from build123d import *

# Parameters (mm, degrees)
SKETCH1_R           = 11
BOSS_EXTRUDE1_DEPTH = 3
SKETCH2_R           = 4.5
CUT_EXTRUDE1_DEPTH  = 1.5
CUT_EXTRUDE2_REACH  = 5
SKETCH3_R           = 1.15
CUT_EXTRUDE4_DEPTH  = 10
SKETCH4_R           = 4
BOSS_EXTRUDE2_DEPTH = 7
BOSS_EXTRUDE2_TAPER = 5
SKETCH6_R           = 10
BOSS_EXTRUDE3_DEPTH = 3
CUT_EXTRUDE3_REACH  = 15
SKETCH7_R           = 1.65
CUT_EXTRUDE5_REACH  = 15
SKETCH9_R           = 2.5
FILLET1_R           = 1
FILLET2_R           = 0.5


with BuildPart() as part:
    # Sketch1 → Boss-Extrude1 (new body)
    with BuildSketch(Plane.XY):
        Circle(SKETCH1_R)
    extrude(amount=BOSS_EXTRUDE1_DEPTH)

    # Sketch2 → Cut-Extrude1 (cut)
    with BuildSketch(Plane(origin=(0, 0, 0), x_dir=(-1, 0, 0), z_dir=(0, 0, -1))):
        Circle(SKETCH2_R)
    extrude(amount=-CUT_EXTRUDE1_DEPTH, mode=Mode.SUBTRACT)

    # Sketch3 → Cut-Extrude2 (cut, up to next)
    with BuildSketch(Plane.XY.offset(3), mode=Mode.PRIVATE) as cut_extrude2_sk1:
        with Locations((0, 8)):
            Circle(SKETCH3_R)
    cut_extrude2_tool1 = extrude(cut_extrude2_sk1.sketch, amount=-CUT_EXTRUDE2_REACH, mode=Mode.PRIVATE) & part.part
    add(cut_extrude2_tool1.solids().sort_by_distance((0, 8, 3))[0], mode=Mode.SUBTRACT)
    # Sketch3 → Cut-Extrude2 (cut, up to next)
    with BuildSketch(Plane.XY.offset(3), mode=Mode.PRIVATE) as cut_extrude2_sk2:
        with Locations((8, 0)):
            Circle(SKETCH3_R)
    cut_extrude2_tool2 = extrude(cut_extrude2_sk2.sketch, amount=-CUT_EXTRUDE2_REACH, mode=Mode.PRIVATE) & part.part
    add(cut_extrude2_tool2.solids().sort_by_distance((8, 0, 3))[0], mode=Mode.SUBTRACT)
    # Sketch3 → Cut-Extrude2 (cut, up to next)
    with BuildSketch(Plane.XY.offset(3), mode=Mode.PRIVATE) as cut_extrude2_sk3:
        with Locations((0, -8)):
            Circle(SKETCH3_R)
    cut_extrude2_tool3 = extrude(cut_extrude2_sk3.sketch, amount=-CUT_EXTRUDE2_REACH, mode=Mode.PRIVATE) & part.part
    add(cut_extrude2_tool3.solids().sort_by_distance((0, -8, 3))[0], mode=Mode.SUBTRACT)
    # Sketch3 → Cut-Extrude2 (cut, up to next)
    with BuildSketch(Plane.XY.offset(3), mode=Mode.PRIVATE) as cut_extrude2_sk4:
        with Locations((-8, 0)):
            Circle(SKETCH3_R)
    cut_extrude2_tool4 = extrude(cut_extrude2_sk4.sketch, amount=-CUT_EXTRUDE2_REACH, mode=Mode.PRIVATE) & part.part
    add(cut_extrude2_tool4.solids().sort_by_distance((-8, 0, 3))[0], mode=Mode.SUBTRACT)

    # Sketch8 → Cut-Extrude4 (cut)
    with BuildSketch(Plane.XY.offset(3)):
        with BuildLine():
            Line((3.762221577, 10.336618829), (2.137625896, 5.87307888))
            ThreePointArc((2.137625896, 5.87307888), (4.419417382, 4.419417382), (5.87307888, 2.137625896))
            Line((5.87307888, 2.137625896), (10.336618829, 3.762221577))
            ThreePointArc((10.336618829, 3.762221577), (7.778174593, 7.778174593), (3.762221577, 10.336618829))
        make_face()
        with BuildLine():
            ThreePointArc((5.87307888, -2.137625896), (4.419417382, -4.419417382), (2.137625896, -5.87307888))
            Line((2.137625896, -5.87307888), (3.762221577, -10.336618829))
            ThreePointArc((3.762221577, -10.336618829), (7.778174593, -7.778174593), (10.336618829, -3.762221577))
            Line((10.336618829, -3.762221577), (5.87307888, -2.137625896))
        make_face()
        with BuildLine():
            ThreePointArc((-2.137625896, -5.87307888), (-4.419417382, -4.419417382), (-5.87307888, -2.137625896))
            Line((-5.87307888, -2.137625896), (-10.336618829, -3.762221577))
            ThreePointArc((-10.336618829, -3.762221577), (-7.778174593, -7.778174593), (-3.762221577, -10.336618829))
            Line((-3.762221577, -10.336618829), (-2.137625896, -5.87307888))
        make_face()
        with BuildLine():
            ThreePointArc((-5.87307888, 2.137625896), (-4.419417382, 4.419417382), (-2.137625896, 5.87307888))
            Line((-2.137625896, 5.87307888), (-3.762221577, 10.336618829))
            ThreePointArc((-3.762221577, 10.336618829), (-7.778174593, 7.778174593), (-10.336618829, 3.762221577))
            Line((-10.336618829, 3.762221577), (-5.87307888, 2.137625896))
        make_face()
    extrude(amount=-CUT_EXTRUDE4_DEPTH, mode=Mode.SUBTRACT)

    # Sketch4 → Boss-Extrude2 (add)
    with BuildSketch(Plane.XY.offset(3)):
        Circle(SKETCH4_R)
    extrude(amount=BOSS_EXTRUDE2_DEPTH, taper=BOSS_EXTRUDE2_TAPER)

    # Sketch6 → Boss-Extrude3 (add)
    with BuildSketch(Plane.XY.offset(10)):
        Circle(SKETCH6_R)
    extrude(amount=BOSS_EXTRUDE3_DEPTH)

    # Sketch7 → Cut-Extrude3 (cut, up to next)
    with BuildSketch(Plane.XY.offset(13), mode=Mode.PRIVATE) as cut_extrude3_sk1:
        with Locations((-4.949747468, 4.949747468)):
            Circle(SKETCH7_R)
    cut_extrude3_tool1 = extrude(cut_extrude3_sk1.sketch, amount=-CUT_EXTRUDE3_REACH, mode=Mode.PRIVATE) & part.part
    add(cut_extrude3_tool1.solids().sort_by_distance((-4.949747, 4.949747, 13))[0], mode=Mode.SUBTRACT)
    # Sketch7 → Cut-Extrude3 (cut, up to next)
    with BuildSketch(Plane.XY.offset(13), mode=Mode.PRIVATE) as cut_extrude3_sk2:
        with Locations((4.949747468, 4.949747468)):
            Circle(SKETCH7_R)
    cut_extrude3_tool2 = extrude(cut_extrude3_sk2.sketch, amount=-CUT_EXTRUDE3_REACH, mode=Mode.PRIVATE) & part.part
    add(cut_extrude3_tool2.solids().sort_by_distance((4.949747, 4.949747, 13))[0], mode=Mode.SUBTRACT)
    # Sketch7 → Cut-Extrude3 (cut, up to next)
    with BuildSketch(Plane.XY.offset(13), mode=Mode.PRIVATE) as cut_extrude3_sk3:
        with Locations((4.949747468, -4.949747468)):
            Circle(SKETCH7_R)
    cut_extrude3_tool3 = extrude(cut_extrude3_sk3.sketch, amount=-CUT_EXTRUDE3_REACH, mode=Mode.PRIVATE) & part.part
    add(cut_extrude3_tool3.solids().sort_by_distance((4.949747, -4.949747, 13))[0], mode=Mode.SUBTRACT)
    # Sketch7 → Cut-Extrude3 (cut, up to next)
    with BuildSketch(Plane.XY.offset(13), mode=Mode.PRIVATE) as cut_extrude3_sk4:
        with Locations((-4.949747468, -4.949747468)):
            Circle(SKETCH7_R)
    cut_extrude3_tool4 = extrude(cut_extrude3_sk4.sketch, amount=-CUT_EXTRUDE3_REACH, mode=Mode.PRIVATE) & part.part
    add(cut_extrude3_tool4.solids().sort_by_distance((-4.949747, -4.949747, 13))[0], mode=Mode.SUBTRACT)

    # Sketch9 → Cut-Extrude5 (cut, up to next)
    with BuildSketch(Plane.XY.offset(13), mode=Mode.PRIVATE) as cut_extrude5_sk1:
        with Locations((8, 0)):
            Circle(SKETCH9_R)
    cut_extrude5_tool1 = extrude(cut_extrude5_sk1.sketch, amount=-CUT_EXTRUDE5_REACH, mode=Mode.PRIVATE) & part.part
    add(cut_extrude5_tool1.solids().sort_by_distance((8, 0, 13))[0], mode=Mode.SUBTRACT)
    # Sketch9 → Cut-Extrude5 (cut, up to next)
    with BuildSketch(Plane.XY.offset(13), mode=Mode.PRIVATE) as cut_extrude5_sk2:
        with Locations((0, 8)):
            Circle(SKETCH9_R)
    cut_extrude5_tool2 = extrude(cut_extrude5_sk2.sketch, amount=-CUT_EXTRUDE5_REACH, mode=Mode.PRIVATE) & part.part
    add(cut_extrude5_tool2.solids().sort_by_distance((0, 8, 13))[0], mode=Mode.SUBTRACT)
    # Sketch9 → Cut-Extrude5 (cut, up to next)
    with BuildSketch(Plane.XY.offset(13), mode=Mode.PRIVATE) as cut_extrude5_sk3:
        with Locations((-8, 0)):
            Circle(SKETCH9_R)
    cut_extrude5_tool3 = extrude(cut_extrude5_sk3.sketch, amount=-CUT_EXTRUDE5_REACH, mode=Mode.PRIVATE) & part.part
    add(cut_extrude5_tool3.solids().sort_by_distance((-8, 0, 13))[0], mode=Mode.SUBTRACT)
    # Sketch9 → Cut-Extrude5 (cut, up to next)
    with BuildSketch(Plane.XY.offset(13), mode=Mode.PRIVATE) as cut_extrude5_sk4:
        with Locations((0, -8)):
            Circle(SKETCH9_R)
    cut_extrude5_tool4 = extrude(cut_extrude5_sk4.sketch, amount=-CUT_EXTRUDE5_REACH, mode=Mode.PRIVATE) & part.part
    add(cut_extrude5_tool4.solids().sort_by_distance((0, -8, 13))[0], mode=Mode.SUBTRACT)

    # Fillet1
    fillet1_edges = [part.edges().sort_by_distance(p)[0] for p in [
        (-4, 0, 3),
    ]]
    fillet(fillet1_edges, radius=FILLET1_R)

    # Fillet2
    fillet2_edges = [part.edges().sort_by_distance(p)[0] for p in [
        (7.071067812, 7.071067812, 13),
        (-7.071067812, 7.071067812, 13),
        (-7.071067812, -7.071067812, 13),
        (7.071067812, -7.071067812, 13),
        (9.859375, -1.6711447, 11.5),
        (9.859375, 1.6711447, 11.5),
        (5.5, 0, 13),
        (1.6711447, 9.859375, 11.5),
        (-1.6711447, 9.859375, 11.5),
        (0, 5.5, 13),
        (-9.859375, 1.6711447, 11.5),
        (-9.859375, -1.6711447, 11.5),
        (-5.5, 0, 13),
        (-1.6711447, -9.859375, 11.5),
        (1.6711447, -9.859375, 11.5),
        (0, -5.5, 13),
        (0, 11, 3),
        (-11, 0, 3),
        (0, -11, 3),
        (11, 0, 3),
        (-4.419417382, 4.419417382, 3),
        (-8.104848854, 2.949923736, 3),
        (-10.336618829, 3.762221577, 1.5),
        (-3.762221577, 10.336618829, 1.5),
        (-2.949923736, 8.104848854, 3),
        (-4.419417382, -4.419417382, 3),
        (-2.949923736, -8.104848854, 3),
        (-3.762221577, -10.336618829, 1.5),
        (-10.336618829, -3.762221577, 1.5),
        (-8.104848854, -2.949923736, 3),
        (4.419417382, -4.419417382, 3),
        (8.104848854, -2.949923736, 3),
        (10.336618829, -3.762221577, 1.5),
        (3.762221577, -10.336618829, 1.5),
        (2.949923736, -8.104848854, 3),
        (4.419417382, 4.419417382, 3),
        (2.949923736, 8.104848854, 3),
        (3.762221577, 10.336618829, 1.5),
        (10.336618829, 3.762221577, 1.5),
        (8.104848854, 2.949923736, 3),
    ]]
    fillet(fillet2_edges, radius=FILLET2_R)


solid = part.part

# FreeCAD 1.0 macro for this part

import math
import FreeCAD as App
import Part
import Sketcher
Q = App.Units.Quantity


def edges_at(feature, points):
    """Names of the edges that pass closest to the given points."""
    edges = feature.Shape.Edges
    near = lambda p: min(range(len(edges)), key=lambda i: edges[i].distToShape(Part.Vertex(*p))[0])
    return sorted({f"Edge{near(p) + 1}" for p in points})

doc = App.newDocument("Part")
body = doc.addObject("PartDesign::Body", "Body")

# Sketch on XY plane
sketch1 = body.newObject("Sketcher::SketchObject", "Sketch")
sketch1.AttachmentSupport = (doc.getObject("XY_Plane"), [""])
sketch1.MapMode = "FlatFace"
sketch1.addGeometry(Part.Circle(App.Vector(0, 0, 0), App.Vector(0, 0, 1), 11), False)
sketch1.addConstraint([
    Sketcher.Constraint("Coincident", 0, 3, -1, 1),
    Sketcher.Constraint("Diameter", 0, 22.0),
])
pad1 = body.newObject("PartDesign::Pad", "Pad")
pad1.Profile = sketch1
pad1.Length = 3

# Sketch on XY plane
sketch2 = body.newObject("Sketcher::SketchObject", "Sketch001")
sketch2.AttachmentSupport = (doc.getObject("XY_Plane"), [""])
sketch2.MapMode = "FlatFace"
sketch2.addGeometry(Part.Circle(App.Vector(0, 0, 0), App.Vector(0, 0, 1), 4.5), False)
sketch2.addConstraint([
    Sketcher.Constraint("Coincident", 0, 3, -1, 1),
    Sketcher.Constraint("Diameter", 0, 9.0),
])
pocket1 = body.newObject("PartDesign::Pocket", "Pocket")
pocket1.Profile = sketch2
pocket1.Length = 1.5
pocket1.Reversed = True

# Sketch on XY plane
sketch3 = body.newObject("Sketcher::SketchObject", "Sketch002")
sketch3.AttachmentSupport = (doc.getObject("XY_Plane"), [""])
sketch3.MapMode = "FlatFace"
sketch3.AttachmentOffset = App.Placement(App.Vector(0, 0, 3), App.Rotation())
sketch3.addGeometry(Part.Circle(App.Vector(0, 8, 0), App.Vector(0, 0, 1), 1.1), False)
sketch3.addConstraint([
    Sketcher.Constraint("PointOnObject", 0, 3, -2),
    Sketcher.Constraint("Diameter", 0, 2.3),
    Sketcher.Constraint("DistanceY", -1, 1, 0, 3, 8.0),
])
pocket2 = body.newObject("PartDesign::Pocket", "Pocket001")
pocket2.Profile = sketch3
pocket2.Type = "UpToFirst"

# Sketch on XY plane
sketch4 = body.newObject("Sketcher::SketchObject", "Sketch003")
sketch4.AttachmentSupport = (doc.getObject("XY_Plane"), [""])
sketch4.MapMode = "FlatFace"
sketch4.AttachmentOffset = App.Placement(App.Vector(0, 0, 3), App.Rotation())
sketch4.addGeometry(Part.Circle(App.Vector(8, 0, 0), App.Vector(0, 0, 1), 1.1), False)
sketch4.addConstraint([
    Sketcher.Constraint("PointOnObject", 0, 3, -1),
    Sketcher.Constraint("Diameter", 0, 2.3),
    Sketcher.Constraint("DistanceX", -1, 1, 0, 3, 8.0),
])
pocket3 = body.newObject("PartDesign::Pocket", "Pocket002")
pocket3.Profile = sketch4
pocket3.Type = "UpToFirst"

# Sketch on XY plane
sketch5 = body.newObject("Sketcher::SketchObject", "Sketch004")
sketch5.AttachmentSupport = (doc.getObject("XY_Plane"), [""])
sketch5.MapMode = "FlatFace"
sketch5.AttachmentOffset = App.Placement(App.Vector(0, 0, 3), App.Rotation())
sketch5.addGeometry(Part.Circle(App.Vector(0, -8, 0), App.Vector(0, 0, 1), 1.1), False)
sketch5.addConstraint([
    Sketcher.Constraint("PointOnObject", 0, 3, -2),
    Sketcher.Constraint("Diameter", 0, 2.3),
    Sketcher.Constraint("DistanceY", 0, 3, -1, 1, 8.0),
])
pocket4 = body.newObject("PartDesign::Pocket", "Pocket003")
pocket4.Profile = sketch5
pocket4.Type = "UpToFirst"

# Sketch on XY plane
sketch6 = body.newObject("Sketcher::SketchObject", "Sketch005")
sketch6.AttachmentSupport = (doc.getObject("XY_Plane"), [""])
sketch6.MapMode = "FlatFace"
sketch6.AttachmentOffset = App.Placement(App.Vector(0, 0, 3), App.Rotation())
sketch6.addGeometry(Part.Circle(App.Vector(-8, 0, 0), App.Vector(0, 0, 1), 1.1), False)
sketch6.addConstraint([
    Sketcher.Constraint("PointOnObject", 0, 3, -1),
    Sketcher.Constraint("Diameter", 0, 2.3),
    Sketcher.Constraint("DistanceX", 0, 3, -1, 1, 8.0),
])
pocket5 = body.newObject("PartDesign::Pocket", "Pocket004")
pocket5.Profile = sketch6
pocket5.Type = "UpToFirst"

# Sketch on XY plane
sketch7 = body.newObject("Sketcher::SketchObject", "Sketch006")
sketch7.AttachmentSupport = (doc.getObject("XY_Plane"), [""])
sketch7.MapMode = "FlatFace"
sketch7.AttachmentOffset = App.Placement(App.Vector(0, 0, 3), App.Rotation())
sketch7.addGeometry([
    Part.LineSegment(App.Vector(3.8, 10.3, 0), App.Vector(2.1, 5.9, 0)),  # 0
    Part.ArcOfCircle(Part.Circle(App.Vector(0, 0, 0), App.Vector(0, 0, 1), 6.3), math.radians(20), math.radians(70)),  # 1
    Part.LineSegment(App.Vector(5.9, 2.1, 0), App.Vector(10.3, 3.8, 0)),  # 2
    Part.ArcOfCircle(Part.Circle(App.Vector(0, 0, 0), App.Vector(0, 0, 1), 11), math.radians(20), math.radians(70)),  # 3
    Part.ArcOfCircle(Part.Circle(App.Vector(0, 0, 0), App.Vector(0, 0, 1), 6.3), math.radians(-70), math.radians(-20)),  # 4
    Part.LineSegment(App.Vector(2.1, -5.9, 0), App.Vector(3.8, -10.3, 0)),  # 5
    Part.ArcOfCircle(Part.Circle(App.Vector(0, 0, 0), App.Vector(0, 0, 1), 11), math.radians(-70), math.radians(-20)),  # 6
    Part.LineSegment(App.Vector(10.3, -3.8, 0), App.Vector(5.9, -2.1, 0)),  # 7
    Part.ArcOfCircle(Part.Circle(App.Vector(0, 0, 0), App.Vector(0, 0, 1), 6.3), math.radians(-160), math.radians(-110)),  # 8
    Part.LineSegment(App.Vector(-5.9, -2.1, 0), App.Vector(-10.3, -3.8, 0)),  # 9
    Part.ArcOfCircle(Part.Circle(App.Vector(0, 0, 0), App.Vector(0, 0, 1), 11), math.radians(-160), math.radians(-110)),  # 10
    Part.LineSegment(App.Vector(-3.8, -10.3, 0), App.Vector(-2.1, -5.9, 0)),  # 11
    Part.ArcOfCircle(Part.Circle(App.Vector(0, 0, 0), App.Vector(0, 0, 1), 6.3), math.radians(110), math.radians(160)),  # 12
    Part.LineSegment(App.Vector(-2.1, 5.9, 0), App.Vector(-3.8, 10.3, 0)),  # 13
    Part.ArcOfCircle(Part.Circle(App.Vector(0, 0, 0), App.Vector(0, 0, 1), 11), math.radians(110), math.radians(160)),  # 14
    Part.LineSegment(App.Vector(-10.3, 3.8, 0), App.Vector(-5.9, 2.1, 0)),  # 15
], False)
sketch7.addConstraint([
    Sketcher.Constraint("Coincident", 0, 2, 1, 2),
    Sketcher.Constraint("Coincident", 1, 1, 2, 1),
    Sketcher.Constraint("Coincident", 2, 2, 3, 1),
    Sketcher.Constraint("Coincident", 3, 2, 0, 1),
    Sketcher.Constraint("Coincident", 4, 1, 5, 1),
    Sketcher.Constraint("Coincident", 5, 2, 6, 1),
    Sketcher.Constraint("Coincident", 6, 2, 7, 1),
    Sketcher.Constraint("Coincident", 7, 2, 4, 2),
    Sketcher.Constraint("Coincident", 8, 1, 9, 1),
    Sketcher.Constraint("Coincident", 9, 2, 10, 1),
    Sketcher.Constraint("Coincident", 10, 2, 11, 1),
    Sketcher.Constraint("Coincident", 11, 2, 8, 2),
    Sketcher.Constraint("Coincident", 12, 1, 13, 1),
    Sketcher.Constraint("Coincident", 13, 2, 14, 1),
    Sketcher.Constraint("Coincident", 14, 2, 15, 1),
    Sketcher.Constraint("Coincident", 15, 2, 12, 2),
    Sketcher.Constraint("Coincident", 1, 3, -1, 1),
    Sketcher.Constraint("Coincident", 3, 3, -1, 1),
    Sketcher.Constraint("Coincident", 4, 3, -1, 1),
    Sketcher.Constraint("Coincident", 6, 3, -1, 1),
    Sketcher.Constraint("Coincident", 8, 3, -1, 1),
    Sketcher.Constraint("Coincident", 10, 3, -1, 1),
    Sketcher.Constraint("Coincident", 12, 3, -1, 1),
    Sketcher.Constraint("Coincident", 14, 3, -1, 1),
    Sketcher.Constraint("Equal", 1, 4),
    Sketcher.Constraint("Equal", 3, 6),
    Sketcher.Constraint("Equal", 4, 8),
    Sketcher.Constraint("Equal", 6, 10),
    Sketcher.Constraint("Equal", 8, 12),
    Sketcher.Constraint("Equal", 10, 14),
    Sketcher.Constraint("Perpendicular", 2, 5),
    Sketcher.Constraint("Perpendicular", 0, 7),
    Sketcher.Constraint("Perpendicular", 5, 9),
    Sketcher.Constraint("Perpendicular", 7, 11),
    Sketcher.Constraint("Perpendicular", 9, 13),
    Sketcher.Constraint("Perpendicular", 11, 15),
    Sketcher.Constraint("Horizontal", 7, 2, 8, 1),
    Sketcher.Constraint("Horizontal", 6, 2, 9, 2),
    Sketcher.Constraint("Horizontal", 5, 2, 10, 2),
    Sketcher.Constraint("Horizontal", 0, 2, 12, 1),
    Sketcher.Constraint("Horizontal", 2, 2, 14, 2),
    Sketcher.Constraint("Vertical", 0, 2, 4, 1),
    Sketcher.Constraint("Vertical", 2, 2, 6, 2),
    Sketcher.Constraint("Radius", 3, 11.0),
    Sketcher.Constraint("Angle", 0, Q("-110 deg")),
    Sketcher.Constraint("Radius", 1, 6.25),
    Sketcher.Constraint("DistanceY", -1, 1, 0, 2, 5.873079),
    Sketcher.Constraint("DistanceX", -1, 1, 1, 1, 5.873079),
])
pocket6 = body.newObject("PartDesign::Pocket", "Pocket005")
pocket6.Profile = sketch7
pocket6.Length = 10

# Sketch on XY plane
sketch8 = body.newObject("Sketcher::SketchObject", "Sketch007")
sketch8.AttachmentSupport = (doc.getObject("XY_Plane"), [""])
sketch8.MapMode = "FlatFace"
sketch8.AttachmentOffset = App.Placement(App.Vector(0, 0, 3), App.Rotation())
sketch8.addGeometry(Part.Circle(App.Vector(0, 0, 0), App.Vector(0, 0, 1), 4), False)
sketch8.addConstraint([
    Sketcher.Constraint("Coincident", 0, 3, -1, 1),
    Sketcher.Constraint("Diameter", 0, 8.0),
])
pad2 = body.newObject("PartDesign::Pad", "Pad001")
pad2.Profile = sketch8
pad2.Length = 7
pad2.TaperAngle = -5

# Sketch on XY plane
sketch9 = body.newObject("Sketcher::SketchObject", "Sketch008")
sketch9.AttachmentSupport = (doc.getObject("XY_Plane"), [""])
sketch9.MapMode = "FlatFace"
sketch9.AttachmentOffset = App.Placement(App.Vector(0, 0, 10), App.Rotation())
sketch9.addGeometry(Part.Circle(App.Vector(0, 0, 0), App.Vector(0, 0, 1), 10), False)
sketch9.addConstraint([
    Sketcher.Constraint("Coincident", 0, 3, -1, 1),
    Sketcher.Constraint("Diameter", 0, 20.0),
])
pad3 = body.newObject("PartDesign::Pad", "Pad002")
pad3.Profile = sketch9
pad3.Length = 3

# Sketch on XY plane
sketch10 = body.newObject("Sketcher::SketchObject", "Sketch009")
sketch10.AttachmentSupport = (doc.getObject("XY_Plane"), [""])
sketch10.MapMode = "FlatFace"
sketch10.AttachmentOffset = App.Placement(App.Vector(0, 0, 13), App.Rotation())
sketch10.addGeometry(Part.Circle(App.Vector(-4.9, 4.9, 0), App.Vector(0, 0, 1), 1.6), False)
sketch10.addConstraint([
    Sketcher.Constraint("Diameter", 0, 3.3),
    Sketcher.Constraint("DistanceX", 0, 3, -1, 1, 4.949747),
    Sketcher.Constraint("DistanceY", -1, 1, 0, 3, 4.949747),
])
pocket7 = body.newObject("PartDesign::Pocket", "Pocket006")
pocket7.Profile = sketch10
pocket7.Type = "UpToFirst"

# Sketch on XY plane
sketch11 = body.newObject("Sketcher::SketchObject", "Sketch010")
sketch11.AttachmentSupport = (doc.getObject("XY_Plane"), [""])
sketch11.MapMode = "FlatFace"
sketch11.AttachmentOffset = App.Placement(App.Vector(0, 0, 13), App.Rotation())
sketch11.addGeometry(Part.Circle(App.Vector(4.9, 4.9, 0), App.Vector(0, 0, 1), 1.6), False)
sketch11.addConstraint([
    Sketcher.Constraint("Diameter", 0, 3.3),
    Sketcher.Constraint("DistanceX", -1, 1, 0, 3, 4.949747),
    Sketcher.Constraint("DistanceY", -1, 1, 0, 3, 4.949747),
])
pocket8 = body.newObject("PartDesign::Pocket", "Pocket007")
pocket8.Profile = sketch11
pocket8.Type = "UpToFirst"

# Sketch on XY plane
sketch12 = body.newObject("Sketcher::SketchObject", "Sketch011")
sketch12.AttachmentSupport = (doc.getObject("XY_Plane"), [""])
sketch12.MapMode = "FlatFace"
sketch12.AttachmentOffset = App.Placement(App.Vector(0, 0, 13), App.Rotation())
sketch12.addGeometry(Part.Circle(App.Vector(4.9, -4.9, 0), App.Vector(0, 0, 1), 1.6), False)
sketch12.addConstraint([
    Sketcher.Constraint("Diameter", 0, 3.3),
    Sketcher.Constraint("DistanceX", -1, 1, 0, 3, 4.949747),
    Sketcher.Constraint("DistanceY", 0, 3, -1, 1, 4.949747),
])
pocket9 = body.newObject("PartDesign::Pocket", "Pocket008")
pocket9.Profile = sketch12
pocket9.Type = "UpToFirst"

# Sketch on XY plane
sketch13 = body.newObject("Sketcher::SketchObject", "Sketch012")
sketch13.AttachmentSupport = (doc.getObject("XY_Plane"), [""])
sketch13.MapMode = "FlatFace"
sketch13.AttachmentOffset = App.Placement(App.Vector(0, 0, 13), App.Rotation())
sketch13.addGeometry(Part.Circle(App.Vector(-4.9, -4.9, 0), App.Vector(0, 0, 1), 1.6), False)
sketch13.addConstraint([
    Sketcher.Constraint("Diameter", 0, 3.3),
    Sketcher.Constraint("DistanceX", 0, 3, -1, 1, 4.949747),
    Sketcher.Constraint("DistanceY", 0, 3, -1, 1, 4.949747),
])
pocket10 = body.newObject("PartDesign::Pocket", "Pocket009")
pocket10.Profile = sketch13
pocket10.Type = "UpToFirst"

# Sketch on XY plane
sketch14 = body.newObject("Sketcher::SketchObject", "Sketch013")
sketch14.AttachmentSupport = (doc.getObject("XY_Plane"), [""])
sketch14.MapMode = "FlatFace"
sketch14.AttachmentOffset = App.Placement(App.Vector(0, 0, 13), App.Rotation())
sketch14.addGeometry(Part.Circle(App.Vector(8, 0, 0), App.Vector(0, 0, 1), 2.5), False)
sketch14.addConstraint([
    Sketcher.Constraint("PointOnObject", 0, 3, -1),
    Sketcher.Constraint("Diameter", 0, 5.0),
    Sketcher.Constraint("DistanceX", -1, 1, 0, 3, 8.0),
])
pocket11 = body.newObject("PartDesign::Pocket", "Pocket010")
pocket11.Profile = sketch14
pocket11.Type = "UpToFirst"

# Sketch on XY plane
sketch15 = body.newObject("Sketcher::SketchObject", "Sketch014")
sketch15.AttachmentSupport = (doc.getObject("XY_Plane"), [""])
sketch15.MapMode = "FlatFace"
sketch15.AttachmentOffset = App.Placement(App.Vector(0, 0, 13), App.Rotation())
sketch15.addGeometry(Part.Circle(App.Vector(0, 8, 0), App.Vector(0, 0, 1), 2.5), False)
sketch15.addConstraint([
    Sketcher.Constraint("PointOnObject", 0, 3, -2),
    Sketcher.Constraint("Diameter", 0, 5.0),
    Sketcher.Constraint("DistanceY", -1, 1, 0, 3, 8.0),
])
pocket12 = body.newObject("PartDesign::Pocket", "Pocket011")
pocket12.Profile = sketch15
pocket12.Type = "UpToFirst"

# Sketch on XY plane
sketch16 = body.newObject("Sketcher::SketchObject", "Sketch015")
sketch16.AttachmentSupport = (doc.getObject("XY_Plane"), [""])
sketch16.MapMode = "FlatFace"
sketch16.AttachmentOffset = App.Placement(App.Vector(0, 0, 13), App.Rotation())
sketch16.addGeometry(Part.Circle(App.Vector(-8, 0, 0), App.Vector(0, 0, 1), 2.5), False)
sketch16.addConstraint([
    Sketcher.Constraint("PointOnObject", 0, 3, -1),
    Sketcher.Constraint("Diameter", 0, 5.0),
    Sketcher.Constraint("DistanceX", 0, 3, -1, 1, 8.0),
])
pocket13 = body.newObject("PartDesign::Pocket", "Pocket012")
pocket13.Profile = sketch16
pocket13.Type = "UpToFirst"

# Sketch on XY plane
sketch17 = body.newObject("Sketcher::SketchObject", "Sketch016")
sketch17.AttachmentSupport = (doc.getObject("XY_Plane"), [""])
sketch17.MapMode = "FlatFace"
sketch17.AttachmentOffset = App.Placement(App.Vector(0, 0, 13), App.Rotation())
sketch17.addGeometry(Part.Circle(App.Vector(0, -8, 0), App.Vector(0, 0, 1), 2.5), False)
sketch17.addConstraint([
    Sketcher.Constraint("PointOnObject", 0, 3, -2),
    Sketcher.Constraint("Diameter", 0, 5.0),
    Sketcher.Constraint("DistanceY", 0, 3, -1, 1, 8.0),
])
pocket14 = body.newObject("PartDesign::Pocket", "Pocket013")
pocket14.Profile = sketch17
pocket14.Type = "UpToFirst"
doc.recompute()

fillet = body.newObject("PartDesign::Fillet", "Fillet")
fillet.Base = (pocket14, edges_at(pocket14, [(-4, 0, 3)]))
fillet.Radius = 1
doc.recompute()

fillet2 = body.newObject("PartDesign::Fillet", "Fillet001")
fillet2.Base = (fillet, edges_at(fillet, [
    (7.071, 7.071, 13),
    (-7.071, 7.071, 13),
    (-7.071, -7.071, 13),
    (7.071, -7.071, 13),
    (9.859, -1.671, 11.5),
    (9.859, 1.671, 11.5),
    (5.5, 0, 13),
    (1.671, 9.859, 11.5),
    (-1.671, 9.859, 11.5),
    (0, 5.5, 13),
    (-9.859, 1.671, 11.5),
    (-9.859, -1.671, 11.5),
    (-5.5, 0, 13),
    (-1.671, -9.859, 11.5),
    (1.671, -9.859, 11.5),
    (0, -5.5, 13),
    (0, 11, 3),
    (-11, 0, 3),
    (0, -11, 3),
    (11, 0, 3),
    (-4.419, 4.419, 3),
    (-8.105, 2.95, 3),
    (-10.337, 3.762, 1.5),
    (-3.762, 10.337, 1.5),
    (-2.95, 8.105, 3),
    (-4.419, -4.419, 3),
    (-2.95, -8.105, 3),
    (-3.762, -10.337, 1.5),
    (-10.337, -3.762, 1.5),
    (-8.105, -2.95, 3),
    (4.419, -4.419, 3),
    (8.105, -2.95, 3),
    (10.337, -3.762, 1.5),
    (3.762, -10.337, 1.5),
    (2.95, -8.105, 3),
    (4.419, 4.419, 3),
    (2.95, 8.105, 3),
    (3.762, 10.337, 1.5),
    (10.337, 3.762, 1.5),
    (8.105, 2.95, 3),
]))
fillet2.Radius = 0.5

doc.recompute()
